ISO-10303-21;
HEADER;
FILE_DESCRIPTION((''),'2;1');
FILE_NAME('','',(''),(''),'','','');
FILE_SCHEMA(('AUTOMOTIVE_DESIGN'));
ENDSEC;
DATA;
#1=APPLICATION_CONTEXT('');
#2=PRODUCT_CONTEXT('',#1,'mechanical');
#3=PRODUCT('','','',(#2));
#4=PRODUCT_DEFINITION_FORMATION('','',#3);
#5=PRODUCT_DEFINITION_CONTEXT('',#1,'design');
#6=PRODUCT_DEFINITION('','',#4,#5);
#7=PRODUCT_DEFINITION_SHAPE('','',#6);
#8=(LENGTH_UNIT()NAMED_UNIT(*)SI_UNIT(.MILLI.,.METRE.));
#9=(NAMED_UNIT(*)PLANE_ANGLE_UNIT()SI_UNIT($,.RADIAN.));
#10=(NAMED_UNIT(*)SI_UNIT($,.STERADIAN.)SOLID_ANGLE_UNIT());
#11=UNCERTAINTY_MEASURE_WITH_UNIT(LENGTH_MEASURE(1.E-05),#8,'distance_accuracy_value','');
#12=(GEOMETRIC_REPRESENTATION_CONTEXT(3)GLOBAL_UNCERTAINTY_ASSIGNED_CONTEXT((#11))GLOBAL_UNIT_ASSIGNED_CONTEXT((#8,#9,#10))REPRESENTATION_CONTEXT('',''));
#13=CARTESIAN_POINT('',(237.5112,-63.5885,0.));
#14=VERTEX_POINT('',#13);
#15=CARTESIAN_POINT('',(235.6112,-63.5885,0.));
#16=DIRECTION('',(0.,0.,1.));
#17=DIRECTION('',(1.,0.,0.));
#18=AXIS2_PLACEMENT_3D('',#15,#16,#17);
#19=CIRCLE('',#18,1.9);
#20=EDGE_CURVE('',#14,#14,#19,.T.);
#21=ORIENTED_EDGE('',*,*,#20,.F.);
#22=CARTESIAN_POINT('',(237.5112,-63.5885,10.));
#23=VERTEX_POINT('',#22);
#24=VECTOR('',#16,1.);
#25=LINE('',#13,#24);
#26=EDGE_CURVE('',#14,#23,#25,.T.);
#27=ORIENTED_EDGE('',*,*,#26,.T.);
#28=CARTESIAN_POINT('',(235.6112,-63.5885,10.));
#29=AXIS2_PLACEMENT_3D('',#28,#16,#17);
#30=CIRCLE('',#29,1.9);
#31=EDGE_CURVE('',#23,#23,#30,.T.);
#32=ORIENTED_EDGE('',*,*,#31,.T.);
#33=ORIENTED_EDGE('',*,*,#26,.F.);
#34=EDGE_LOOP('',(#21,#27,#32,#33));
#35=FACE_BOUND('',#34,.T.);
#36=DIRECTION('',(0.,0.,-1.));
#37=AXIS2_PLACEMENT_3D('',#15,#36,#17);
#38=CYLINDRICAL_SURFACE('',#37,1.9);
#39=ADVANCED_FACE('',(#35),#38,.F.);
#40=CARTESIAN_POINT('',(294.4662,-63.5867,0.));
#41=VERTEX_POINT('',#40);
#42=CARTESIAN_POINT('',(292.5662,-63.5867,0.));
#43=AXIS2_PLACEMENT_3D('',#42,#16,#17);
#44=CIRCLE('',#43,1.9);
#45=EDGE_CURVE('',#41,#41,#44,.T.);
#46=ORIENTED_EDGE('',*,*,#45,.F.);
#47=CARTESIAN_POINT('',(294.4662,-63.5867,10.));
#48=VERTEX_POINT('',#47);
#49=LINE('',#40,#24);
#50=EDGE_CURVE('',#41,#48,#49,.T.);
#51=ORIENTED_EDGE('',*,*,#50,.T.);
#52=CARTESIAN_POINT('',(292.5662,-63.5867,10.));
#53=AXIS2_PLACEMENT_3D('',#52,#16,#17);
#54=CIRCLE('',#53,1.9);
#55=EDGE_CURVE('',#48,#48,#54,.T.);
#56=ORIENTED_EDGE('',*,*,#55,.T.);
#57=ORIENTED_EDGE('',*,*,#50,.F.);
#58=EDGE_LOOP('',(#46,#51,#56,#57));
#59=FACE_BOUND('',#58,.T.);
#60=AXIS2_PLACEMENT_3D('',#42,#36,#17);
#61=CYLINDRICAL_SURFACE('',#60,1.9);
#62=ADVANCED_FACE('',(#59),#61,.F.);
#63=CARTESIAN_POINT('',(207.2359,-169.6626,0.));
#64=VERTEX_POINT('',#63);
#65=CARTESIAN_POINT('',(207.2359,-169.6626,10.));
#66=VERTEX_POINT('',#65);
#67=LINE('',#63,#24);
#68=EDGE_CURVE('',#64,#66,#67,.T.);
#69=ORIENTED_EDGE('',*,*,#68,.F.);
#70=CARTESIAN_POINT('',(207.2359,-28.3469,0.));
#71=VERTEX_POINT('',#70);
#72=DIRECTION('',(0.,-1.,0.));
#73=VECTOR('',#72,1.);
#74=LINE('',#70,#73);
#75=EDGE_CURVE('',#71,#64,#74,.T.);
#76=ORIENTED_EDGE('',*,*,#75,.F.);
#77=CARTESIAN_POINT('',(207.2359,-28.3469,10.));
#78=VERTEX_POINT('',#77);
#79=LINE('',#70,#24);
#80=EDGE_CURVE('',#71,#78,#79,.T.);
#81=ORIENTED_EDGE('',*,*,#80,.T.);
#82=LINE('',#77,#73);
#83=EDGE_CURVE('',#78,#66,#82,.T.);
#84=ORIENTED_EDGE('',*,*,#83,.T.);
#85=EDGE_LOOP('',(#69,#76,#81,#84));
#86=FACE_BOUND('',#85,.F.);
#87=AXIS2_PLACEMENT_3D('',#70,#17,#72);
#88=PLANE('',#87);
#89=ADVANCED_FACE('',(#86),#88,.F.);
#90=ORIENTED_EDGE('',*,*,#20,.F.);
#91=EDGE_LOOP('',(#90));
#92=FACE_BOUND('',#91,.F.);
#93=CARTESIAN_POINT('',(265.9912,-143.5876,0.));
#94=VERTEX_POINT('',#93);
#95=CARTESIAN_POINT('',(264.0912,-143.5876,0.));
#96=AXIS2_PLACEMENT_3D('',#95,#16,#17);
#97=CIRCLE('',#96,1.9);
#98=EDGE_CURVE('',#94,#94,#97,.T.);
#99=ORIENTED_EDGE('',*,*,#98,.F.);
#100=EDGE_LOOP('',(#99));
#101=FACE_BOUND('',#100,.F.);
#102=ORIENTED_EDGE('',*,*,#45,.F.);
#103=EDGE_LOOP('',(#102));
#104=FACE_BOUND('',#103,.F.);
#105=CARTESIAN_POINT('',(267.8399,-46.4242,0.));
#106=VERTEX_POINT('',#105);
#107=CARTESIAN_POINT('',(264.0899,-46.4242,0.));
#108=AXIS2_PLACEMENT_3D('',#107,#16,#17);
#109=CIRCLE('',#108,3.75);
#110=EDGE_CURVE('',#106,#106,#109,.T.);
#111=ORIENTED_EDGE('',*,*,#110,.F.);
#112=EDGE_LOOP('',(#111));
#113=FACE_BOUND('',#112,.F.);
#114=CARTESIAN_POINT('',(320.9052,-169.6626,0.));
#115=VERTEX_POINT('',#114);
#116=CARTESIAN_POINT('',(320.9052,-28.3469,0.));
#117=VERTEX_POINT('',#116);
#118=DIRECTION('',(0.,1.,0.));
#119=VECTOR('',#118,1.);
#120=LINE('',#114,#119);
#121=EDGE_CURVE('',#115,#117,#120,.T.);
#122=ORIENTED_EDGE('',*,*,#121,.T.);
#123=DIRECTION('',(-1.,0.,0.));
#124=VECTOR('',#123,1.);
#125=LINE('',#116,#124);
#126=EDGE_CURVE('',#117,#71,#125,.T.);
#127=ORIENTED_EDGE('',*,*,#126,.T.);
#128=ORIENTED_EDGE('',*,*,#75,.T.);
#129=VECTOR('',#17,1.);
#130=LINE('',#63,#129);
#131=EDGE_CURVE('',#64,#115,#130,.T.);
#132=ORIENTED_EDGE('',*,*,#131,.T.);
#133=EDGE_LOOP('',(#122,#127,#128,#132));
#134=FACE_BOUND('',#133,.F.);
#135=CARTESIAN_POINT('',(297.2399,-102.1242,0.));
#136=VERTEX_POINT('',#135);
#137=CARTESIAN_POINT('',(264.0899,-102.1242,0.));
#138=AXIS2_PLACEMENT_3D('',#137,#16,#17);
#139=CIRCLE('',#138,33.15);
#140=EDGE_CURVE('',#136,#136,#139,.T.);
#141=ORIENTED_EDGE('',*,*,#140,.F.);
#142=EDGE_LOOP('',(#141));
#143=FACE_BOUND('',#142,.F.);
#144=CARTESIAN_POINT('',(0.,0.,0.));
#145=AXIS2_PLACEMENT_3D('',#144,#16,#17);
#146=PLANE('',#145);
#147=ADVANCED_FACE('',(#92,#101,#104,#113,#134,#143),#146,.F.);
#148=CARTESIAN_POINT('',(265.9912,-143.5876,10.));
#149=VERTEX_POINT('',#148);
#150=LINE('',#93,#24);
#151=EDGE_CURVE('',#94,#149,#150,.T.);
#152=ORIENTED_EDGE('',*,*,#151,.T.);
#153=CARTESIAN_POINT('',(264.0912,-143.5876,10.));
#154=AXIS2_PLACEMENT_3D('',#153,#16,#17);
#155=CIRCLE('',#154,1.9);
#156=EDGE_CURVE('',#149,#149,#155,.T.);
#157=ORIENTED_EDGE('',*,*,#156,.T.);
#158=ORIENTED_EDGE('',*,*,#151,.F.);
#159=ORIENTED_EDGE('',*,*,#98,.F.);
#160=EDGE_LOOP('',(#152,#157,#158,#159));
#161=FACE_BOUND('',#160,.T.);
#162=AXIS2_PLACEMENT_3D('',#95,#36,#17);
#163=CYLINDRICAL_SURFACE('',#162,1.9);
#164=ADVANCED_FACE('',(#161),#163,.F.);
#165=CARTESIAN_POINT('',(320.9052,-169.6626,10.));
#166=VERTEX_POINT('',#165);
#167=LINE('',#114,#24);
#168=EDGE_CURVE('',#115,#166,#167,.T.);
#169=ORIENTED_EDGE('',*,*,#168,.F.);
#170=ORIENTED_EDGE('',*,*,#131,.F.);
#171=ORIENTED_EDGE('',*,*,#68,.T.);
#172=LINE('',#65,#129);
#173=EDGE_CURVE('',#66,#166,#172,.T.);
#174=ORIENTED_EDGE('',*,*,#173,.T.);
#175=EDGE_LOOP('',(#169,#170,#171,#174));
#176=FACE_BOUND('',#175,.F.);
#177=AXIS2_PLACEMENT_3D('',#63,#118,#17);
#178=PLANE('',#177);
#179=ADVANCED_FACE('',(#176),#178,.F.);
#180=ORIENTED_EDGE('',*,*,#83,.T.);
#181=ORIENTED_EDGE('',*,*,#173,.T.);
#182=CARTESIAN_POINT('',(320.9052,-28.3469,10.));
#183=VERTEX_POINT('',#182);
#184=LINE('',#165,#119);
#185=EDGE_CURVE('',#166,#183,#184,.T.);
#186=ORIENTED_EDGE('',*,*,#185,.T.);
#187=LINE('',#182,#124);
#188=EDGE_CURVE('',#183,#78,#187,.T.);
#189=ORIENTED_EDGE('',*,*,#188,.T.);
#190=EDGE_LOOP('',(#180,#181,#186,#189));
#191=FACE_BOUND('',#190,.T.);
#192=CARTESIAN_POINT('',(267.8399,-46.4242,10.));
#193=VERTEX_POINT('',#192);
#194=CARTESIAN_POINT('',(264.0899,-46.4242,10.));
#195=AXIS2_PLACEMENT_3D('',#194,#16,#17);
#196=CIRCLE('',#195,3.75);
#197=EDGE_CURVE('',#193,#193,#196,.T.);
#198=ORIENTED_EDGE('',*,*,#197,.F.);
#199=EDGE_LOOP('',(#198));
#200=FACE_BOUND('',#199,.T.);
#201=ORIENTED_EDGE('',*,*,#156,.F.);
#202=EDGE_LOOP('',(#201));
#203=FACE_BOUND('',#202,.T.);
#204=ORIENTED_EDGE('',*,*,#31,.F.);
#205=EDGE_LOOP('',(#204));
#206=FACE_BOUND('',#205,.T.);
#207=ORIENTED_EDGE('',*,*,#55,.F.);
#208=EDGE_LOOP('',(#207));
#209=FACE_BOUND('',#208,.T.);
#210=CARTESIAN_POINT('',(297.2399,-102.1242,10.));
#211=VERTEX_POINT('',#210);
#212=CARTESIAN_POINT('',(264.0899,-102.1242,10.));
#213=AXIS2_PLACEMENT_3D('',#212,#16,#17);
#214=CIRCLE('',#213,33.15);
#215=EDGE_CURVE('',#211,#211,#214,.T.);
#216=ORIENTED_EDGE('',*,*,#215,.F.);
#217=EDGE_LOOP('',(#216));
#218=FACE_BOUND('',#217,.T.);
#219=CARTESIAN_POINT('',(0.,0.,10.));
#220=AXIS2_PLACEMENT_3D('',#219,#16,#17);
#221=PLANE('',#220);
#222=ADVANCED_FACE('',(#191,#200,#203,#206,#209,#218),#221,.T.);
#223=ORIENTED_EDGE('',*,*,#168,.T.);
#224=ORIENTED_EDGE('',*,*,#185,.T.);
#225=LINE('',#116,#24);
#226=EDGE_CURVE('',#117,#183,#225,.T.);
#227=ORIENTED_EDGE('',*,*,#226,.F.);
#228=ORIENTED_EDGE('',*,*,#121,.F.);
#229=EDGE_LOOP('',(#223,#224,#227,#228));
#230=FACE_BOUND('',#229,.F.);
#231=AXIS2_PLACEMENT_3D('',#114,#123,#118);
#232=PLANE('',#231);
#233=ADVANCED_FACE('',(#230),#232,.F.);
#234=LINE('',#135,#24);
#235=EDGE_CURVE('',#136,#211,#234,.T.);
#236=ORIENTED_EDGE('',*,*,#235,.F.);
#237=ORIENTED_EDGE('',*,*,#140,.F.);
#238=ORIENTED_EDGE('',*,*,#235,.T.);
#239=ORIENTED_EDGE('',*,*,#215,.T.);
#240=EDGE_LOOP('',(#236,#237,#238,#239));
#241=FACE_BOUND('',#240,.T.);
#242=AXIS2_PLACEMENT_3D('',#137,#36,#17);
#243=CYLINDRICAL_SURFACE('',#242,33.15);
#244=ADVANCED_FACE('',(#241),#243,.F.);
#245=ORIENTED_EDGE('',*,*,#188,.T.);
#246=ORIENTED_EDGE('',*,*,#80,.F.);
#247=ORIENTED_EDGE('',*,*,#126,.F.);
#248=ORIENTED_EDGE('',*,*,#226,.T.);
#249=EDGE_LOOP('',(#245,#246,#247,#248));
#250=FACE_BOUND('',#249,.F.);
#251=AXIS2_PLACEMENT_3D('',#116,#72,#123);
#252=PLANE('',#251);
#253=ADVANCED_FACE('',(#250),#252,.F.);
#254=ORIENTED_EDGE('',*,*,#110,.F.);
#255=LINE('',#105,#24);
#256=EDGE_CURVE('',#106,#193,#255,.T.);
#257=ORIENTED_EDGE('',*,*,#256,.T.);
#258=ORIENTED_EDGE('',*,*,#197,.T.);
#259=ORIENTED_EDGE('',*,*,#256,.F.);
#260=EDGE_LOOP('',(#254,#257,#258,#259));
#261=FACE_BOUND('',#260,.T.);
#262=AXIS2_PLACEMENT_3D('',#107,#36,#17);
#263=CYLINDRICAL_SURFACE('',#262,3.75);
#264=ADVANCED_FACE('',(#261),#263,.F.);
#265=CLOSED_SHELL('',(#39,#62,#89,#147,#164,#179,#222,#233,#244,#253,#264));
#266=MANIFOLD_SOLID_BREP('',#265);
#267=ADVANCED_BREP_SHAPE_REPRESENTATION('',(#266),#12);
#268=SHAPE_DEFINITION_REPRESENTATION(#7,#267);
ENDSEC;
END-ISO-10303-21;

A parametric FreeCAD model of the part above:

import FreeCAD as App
import Part
import Sketcher

V = App.Vector


def add_polygon(sketch, points):
    """Adds a closed chain of lines whose ends are joined by coincident constraints."""
    first, n = sketch.GeometryCount, len(points)
    for a, b in zip(points, points[1:] + points[:1]):
        sketch.addGeometry(Part.LineSegment(App.Vector(*a, 0), App.Vector(*b, 0)), False)
    for i in range(n):
        sketch.addConstraint(Sketcher.Constraint("Coincident", first + i, 2, first + (i + 1) % n, 1))

doc = App.newDocument("Part")
body = doc.addObject("PartDesign::Body", "Body")

# Sketch on XY plane
sketch1 = body.newObject("Sketcher::SketchObject", "Sketch")
sketch1.AttachmentSupport = (doc.getObject("XY_Plane"), [""])
sketch1.MapMode = "FlatFace"
add_polygon(sketch1, [(320.9, -169.7), (320.9, -28.3), (207.2, -28.3), (207.2, -169.7)])  # lines 0-3
sketch1.addGeometry(Part.Circle(V(235.6, -63.6, 0), V(0, 0, 1), 1.9), False)  # 4
sketch1.addGeometry(Part.Circle(V(264.1, -143.6, 0), V(0, 0, 1), 1.9), False)  # 5
sketch1.addGeometry(Part.Circle(V(264.1, -102.1, 0), V(0, 0, 1), 33.1), False)  # 6
sketch1.addGeometry(Part.Circle(V(264.1, -46.4, 0), V(0, 0, 1), 3.8), False)  # 7
sketch1.addGeometry(Part.Circle(V(292.6, -63.6, 0), V(0, 0, 1), 1.9), False)  # 8
sketch1.addConstraint([
    Sketcher.Constraint("Vertical", 0),
    Sketcher.Constraint("Horizontal", 1),
    Sketcher.Constraint("Vertical", 2),
    Sketcher.Constraint("Horizontal", 3),
    Sketcher.Constraint("Equal", 4, 5),
    Sketcher.Constraint("Equal", 5, 8),
    Sketcher.Constraint("Vertical", 6, 3, 7, 3),
    Sketcher.Constraint("Diameter", 7, 7.5),
    Sketcher.Constraint("Diameter", 4, 3.8),
    Sketcher.Constraint("Diameter", 6, 66.3),
    Sketcher.Constraint("DistanceY", 6, 3, 7, 3, 55.7),
    Sketcher.Constraint("DistanceY", 5, 3, 6, 3, 41.4634),
    Sketcher.Constraint("DistanceX", -1, 1, 6, 3, 264.09),
    Sketcher.Constraint("DistanceX", 4, 3, 5, 3, 28.48),
    Sketcher.Constraint("DistanceX", 1, 2, 1, 1, 113.6693),
    Sketcher.Constraint("DistanceY", 0, 1, 0, 2, 141.3157),
    Sketcher.Constraint("DistanceY", 0, 2, -1, 1, 28.347),
    Sketcher.Constraint("DistanceX", -1, 1, 1, 2, 207.236),
    Sketcher.Constraint("DistanceY", 5, 3, 4, 3, 79.999),
    Sketcher.Constraint("DistanceX", 4, 3, 8, 3, 56.955),
    Sketcher.Constraint("DistanceY", 5, 3, 8, 3, 80.001),
    Sketcher.Constraint("DistanceX", 8, 3, 0, 2, 28.339),
    Sketcher.Constraint("DistanceY", 2, 2, 5, 3, 26.075),
])
pad1 = body.newObject("PartDesign::Pad", "Pad")
pad1.Profile = sketch1
pad1.Length = 10

doc.recompute()
